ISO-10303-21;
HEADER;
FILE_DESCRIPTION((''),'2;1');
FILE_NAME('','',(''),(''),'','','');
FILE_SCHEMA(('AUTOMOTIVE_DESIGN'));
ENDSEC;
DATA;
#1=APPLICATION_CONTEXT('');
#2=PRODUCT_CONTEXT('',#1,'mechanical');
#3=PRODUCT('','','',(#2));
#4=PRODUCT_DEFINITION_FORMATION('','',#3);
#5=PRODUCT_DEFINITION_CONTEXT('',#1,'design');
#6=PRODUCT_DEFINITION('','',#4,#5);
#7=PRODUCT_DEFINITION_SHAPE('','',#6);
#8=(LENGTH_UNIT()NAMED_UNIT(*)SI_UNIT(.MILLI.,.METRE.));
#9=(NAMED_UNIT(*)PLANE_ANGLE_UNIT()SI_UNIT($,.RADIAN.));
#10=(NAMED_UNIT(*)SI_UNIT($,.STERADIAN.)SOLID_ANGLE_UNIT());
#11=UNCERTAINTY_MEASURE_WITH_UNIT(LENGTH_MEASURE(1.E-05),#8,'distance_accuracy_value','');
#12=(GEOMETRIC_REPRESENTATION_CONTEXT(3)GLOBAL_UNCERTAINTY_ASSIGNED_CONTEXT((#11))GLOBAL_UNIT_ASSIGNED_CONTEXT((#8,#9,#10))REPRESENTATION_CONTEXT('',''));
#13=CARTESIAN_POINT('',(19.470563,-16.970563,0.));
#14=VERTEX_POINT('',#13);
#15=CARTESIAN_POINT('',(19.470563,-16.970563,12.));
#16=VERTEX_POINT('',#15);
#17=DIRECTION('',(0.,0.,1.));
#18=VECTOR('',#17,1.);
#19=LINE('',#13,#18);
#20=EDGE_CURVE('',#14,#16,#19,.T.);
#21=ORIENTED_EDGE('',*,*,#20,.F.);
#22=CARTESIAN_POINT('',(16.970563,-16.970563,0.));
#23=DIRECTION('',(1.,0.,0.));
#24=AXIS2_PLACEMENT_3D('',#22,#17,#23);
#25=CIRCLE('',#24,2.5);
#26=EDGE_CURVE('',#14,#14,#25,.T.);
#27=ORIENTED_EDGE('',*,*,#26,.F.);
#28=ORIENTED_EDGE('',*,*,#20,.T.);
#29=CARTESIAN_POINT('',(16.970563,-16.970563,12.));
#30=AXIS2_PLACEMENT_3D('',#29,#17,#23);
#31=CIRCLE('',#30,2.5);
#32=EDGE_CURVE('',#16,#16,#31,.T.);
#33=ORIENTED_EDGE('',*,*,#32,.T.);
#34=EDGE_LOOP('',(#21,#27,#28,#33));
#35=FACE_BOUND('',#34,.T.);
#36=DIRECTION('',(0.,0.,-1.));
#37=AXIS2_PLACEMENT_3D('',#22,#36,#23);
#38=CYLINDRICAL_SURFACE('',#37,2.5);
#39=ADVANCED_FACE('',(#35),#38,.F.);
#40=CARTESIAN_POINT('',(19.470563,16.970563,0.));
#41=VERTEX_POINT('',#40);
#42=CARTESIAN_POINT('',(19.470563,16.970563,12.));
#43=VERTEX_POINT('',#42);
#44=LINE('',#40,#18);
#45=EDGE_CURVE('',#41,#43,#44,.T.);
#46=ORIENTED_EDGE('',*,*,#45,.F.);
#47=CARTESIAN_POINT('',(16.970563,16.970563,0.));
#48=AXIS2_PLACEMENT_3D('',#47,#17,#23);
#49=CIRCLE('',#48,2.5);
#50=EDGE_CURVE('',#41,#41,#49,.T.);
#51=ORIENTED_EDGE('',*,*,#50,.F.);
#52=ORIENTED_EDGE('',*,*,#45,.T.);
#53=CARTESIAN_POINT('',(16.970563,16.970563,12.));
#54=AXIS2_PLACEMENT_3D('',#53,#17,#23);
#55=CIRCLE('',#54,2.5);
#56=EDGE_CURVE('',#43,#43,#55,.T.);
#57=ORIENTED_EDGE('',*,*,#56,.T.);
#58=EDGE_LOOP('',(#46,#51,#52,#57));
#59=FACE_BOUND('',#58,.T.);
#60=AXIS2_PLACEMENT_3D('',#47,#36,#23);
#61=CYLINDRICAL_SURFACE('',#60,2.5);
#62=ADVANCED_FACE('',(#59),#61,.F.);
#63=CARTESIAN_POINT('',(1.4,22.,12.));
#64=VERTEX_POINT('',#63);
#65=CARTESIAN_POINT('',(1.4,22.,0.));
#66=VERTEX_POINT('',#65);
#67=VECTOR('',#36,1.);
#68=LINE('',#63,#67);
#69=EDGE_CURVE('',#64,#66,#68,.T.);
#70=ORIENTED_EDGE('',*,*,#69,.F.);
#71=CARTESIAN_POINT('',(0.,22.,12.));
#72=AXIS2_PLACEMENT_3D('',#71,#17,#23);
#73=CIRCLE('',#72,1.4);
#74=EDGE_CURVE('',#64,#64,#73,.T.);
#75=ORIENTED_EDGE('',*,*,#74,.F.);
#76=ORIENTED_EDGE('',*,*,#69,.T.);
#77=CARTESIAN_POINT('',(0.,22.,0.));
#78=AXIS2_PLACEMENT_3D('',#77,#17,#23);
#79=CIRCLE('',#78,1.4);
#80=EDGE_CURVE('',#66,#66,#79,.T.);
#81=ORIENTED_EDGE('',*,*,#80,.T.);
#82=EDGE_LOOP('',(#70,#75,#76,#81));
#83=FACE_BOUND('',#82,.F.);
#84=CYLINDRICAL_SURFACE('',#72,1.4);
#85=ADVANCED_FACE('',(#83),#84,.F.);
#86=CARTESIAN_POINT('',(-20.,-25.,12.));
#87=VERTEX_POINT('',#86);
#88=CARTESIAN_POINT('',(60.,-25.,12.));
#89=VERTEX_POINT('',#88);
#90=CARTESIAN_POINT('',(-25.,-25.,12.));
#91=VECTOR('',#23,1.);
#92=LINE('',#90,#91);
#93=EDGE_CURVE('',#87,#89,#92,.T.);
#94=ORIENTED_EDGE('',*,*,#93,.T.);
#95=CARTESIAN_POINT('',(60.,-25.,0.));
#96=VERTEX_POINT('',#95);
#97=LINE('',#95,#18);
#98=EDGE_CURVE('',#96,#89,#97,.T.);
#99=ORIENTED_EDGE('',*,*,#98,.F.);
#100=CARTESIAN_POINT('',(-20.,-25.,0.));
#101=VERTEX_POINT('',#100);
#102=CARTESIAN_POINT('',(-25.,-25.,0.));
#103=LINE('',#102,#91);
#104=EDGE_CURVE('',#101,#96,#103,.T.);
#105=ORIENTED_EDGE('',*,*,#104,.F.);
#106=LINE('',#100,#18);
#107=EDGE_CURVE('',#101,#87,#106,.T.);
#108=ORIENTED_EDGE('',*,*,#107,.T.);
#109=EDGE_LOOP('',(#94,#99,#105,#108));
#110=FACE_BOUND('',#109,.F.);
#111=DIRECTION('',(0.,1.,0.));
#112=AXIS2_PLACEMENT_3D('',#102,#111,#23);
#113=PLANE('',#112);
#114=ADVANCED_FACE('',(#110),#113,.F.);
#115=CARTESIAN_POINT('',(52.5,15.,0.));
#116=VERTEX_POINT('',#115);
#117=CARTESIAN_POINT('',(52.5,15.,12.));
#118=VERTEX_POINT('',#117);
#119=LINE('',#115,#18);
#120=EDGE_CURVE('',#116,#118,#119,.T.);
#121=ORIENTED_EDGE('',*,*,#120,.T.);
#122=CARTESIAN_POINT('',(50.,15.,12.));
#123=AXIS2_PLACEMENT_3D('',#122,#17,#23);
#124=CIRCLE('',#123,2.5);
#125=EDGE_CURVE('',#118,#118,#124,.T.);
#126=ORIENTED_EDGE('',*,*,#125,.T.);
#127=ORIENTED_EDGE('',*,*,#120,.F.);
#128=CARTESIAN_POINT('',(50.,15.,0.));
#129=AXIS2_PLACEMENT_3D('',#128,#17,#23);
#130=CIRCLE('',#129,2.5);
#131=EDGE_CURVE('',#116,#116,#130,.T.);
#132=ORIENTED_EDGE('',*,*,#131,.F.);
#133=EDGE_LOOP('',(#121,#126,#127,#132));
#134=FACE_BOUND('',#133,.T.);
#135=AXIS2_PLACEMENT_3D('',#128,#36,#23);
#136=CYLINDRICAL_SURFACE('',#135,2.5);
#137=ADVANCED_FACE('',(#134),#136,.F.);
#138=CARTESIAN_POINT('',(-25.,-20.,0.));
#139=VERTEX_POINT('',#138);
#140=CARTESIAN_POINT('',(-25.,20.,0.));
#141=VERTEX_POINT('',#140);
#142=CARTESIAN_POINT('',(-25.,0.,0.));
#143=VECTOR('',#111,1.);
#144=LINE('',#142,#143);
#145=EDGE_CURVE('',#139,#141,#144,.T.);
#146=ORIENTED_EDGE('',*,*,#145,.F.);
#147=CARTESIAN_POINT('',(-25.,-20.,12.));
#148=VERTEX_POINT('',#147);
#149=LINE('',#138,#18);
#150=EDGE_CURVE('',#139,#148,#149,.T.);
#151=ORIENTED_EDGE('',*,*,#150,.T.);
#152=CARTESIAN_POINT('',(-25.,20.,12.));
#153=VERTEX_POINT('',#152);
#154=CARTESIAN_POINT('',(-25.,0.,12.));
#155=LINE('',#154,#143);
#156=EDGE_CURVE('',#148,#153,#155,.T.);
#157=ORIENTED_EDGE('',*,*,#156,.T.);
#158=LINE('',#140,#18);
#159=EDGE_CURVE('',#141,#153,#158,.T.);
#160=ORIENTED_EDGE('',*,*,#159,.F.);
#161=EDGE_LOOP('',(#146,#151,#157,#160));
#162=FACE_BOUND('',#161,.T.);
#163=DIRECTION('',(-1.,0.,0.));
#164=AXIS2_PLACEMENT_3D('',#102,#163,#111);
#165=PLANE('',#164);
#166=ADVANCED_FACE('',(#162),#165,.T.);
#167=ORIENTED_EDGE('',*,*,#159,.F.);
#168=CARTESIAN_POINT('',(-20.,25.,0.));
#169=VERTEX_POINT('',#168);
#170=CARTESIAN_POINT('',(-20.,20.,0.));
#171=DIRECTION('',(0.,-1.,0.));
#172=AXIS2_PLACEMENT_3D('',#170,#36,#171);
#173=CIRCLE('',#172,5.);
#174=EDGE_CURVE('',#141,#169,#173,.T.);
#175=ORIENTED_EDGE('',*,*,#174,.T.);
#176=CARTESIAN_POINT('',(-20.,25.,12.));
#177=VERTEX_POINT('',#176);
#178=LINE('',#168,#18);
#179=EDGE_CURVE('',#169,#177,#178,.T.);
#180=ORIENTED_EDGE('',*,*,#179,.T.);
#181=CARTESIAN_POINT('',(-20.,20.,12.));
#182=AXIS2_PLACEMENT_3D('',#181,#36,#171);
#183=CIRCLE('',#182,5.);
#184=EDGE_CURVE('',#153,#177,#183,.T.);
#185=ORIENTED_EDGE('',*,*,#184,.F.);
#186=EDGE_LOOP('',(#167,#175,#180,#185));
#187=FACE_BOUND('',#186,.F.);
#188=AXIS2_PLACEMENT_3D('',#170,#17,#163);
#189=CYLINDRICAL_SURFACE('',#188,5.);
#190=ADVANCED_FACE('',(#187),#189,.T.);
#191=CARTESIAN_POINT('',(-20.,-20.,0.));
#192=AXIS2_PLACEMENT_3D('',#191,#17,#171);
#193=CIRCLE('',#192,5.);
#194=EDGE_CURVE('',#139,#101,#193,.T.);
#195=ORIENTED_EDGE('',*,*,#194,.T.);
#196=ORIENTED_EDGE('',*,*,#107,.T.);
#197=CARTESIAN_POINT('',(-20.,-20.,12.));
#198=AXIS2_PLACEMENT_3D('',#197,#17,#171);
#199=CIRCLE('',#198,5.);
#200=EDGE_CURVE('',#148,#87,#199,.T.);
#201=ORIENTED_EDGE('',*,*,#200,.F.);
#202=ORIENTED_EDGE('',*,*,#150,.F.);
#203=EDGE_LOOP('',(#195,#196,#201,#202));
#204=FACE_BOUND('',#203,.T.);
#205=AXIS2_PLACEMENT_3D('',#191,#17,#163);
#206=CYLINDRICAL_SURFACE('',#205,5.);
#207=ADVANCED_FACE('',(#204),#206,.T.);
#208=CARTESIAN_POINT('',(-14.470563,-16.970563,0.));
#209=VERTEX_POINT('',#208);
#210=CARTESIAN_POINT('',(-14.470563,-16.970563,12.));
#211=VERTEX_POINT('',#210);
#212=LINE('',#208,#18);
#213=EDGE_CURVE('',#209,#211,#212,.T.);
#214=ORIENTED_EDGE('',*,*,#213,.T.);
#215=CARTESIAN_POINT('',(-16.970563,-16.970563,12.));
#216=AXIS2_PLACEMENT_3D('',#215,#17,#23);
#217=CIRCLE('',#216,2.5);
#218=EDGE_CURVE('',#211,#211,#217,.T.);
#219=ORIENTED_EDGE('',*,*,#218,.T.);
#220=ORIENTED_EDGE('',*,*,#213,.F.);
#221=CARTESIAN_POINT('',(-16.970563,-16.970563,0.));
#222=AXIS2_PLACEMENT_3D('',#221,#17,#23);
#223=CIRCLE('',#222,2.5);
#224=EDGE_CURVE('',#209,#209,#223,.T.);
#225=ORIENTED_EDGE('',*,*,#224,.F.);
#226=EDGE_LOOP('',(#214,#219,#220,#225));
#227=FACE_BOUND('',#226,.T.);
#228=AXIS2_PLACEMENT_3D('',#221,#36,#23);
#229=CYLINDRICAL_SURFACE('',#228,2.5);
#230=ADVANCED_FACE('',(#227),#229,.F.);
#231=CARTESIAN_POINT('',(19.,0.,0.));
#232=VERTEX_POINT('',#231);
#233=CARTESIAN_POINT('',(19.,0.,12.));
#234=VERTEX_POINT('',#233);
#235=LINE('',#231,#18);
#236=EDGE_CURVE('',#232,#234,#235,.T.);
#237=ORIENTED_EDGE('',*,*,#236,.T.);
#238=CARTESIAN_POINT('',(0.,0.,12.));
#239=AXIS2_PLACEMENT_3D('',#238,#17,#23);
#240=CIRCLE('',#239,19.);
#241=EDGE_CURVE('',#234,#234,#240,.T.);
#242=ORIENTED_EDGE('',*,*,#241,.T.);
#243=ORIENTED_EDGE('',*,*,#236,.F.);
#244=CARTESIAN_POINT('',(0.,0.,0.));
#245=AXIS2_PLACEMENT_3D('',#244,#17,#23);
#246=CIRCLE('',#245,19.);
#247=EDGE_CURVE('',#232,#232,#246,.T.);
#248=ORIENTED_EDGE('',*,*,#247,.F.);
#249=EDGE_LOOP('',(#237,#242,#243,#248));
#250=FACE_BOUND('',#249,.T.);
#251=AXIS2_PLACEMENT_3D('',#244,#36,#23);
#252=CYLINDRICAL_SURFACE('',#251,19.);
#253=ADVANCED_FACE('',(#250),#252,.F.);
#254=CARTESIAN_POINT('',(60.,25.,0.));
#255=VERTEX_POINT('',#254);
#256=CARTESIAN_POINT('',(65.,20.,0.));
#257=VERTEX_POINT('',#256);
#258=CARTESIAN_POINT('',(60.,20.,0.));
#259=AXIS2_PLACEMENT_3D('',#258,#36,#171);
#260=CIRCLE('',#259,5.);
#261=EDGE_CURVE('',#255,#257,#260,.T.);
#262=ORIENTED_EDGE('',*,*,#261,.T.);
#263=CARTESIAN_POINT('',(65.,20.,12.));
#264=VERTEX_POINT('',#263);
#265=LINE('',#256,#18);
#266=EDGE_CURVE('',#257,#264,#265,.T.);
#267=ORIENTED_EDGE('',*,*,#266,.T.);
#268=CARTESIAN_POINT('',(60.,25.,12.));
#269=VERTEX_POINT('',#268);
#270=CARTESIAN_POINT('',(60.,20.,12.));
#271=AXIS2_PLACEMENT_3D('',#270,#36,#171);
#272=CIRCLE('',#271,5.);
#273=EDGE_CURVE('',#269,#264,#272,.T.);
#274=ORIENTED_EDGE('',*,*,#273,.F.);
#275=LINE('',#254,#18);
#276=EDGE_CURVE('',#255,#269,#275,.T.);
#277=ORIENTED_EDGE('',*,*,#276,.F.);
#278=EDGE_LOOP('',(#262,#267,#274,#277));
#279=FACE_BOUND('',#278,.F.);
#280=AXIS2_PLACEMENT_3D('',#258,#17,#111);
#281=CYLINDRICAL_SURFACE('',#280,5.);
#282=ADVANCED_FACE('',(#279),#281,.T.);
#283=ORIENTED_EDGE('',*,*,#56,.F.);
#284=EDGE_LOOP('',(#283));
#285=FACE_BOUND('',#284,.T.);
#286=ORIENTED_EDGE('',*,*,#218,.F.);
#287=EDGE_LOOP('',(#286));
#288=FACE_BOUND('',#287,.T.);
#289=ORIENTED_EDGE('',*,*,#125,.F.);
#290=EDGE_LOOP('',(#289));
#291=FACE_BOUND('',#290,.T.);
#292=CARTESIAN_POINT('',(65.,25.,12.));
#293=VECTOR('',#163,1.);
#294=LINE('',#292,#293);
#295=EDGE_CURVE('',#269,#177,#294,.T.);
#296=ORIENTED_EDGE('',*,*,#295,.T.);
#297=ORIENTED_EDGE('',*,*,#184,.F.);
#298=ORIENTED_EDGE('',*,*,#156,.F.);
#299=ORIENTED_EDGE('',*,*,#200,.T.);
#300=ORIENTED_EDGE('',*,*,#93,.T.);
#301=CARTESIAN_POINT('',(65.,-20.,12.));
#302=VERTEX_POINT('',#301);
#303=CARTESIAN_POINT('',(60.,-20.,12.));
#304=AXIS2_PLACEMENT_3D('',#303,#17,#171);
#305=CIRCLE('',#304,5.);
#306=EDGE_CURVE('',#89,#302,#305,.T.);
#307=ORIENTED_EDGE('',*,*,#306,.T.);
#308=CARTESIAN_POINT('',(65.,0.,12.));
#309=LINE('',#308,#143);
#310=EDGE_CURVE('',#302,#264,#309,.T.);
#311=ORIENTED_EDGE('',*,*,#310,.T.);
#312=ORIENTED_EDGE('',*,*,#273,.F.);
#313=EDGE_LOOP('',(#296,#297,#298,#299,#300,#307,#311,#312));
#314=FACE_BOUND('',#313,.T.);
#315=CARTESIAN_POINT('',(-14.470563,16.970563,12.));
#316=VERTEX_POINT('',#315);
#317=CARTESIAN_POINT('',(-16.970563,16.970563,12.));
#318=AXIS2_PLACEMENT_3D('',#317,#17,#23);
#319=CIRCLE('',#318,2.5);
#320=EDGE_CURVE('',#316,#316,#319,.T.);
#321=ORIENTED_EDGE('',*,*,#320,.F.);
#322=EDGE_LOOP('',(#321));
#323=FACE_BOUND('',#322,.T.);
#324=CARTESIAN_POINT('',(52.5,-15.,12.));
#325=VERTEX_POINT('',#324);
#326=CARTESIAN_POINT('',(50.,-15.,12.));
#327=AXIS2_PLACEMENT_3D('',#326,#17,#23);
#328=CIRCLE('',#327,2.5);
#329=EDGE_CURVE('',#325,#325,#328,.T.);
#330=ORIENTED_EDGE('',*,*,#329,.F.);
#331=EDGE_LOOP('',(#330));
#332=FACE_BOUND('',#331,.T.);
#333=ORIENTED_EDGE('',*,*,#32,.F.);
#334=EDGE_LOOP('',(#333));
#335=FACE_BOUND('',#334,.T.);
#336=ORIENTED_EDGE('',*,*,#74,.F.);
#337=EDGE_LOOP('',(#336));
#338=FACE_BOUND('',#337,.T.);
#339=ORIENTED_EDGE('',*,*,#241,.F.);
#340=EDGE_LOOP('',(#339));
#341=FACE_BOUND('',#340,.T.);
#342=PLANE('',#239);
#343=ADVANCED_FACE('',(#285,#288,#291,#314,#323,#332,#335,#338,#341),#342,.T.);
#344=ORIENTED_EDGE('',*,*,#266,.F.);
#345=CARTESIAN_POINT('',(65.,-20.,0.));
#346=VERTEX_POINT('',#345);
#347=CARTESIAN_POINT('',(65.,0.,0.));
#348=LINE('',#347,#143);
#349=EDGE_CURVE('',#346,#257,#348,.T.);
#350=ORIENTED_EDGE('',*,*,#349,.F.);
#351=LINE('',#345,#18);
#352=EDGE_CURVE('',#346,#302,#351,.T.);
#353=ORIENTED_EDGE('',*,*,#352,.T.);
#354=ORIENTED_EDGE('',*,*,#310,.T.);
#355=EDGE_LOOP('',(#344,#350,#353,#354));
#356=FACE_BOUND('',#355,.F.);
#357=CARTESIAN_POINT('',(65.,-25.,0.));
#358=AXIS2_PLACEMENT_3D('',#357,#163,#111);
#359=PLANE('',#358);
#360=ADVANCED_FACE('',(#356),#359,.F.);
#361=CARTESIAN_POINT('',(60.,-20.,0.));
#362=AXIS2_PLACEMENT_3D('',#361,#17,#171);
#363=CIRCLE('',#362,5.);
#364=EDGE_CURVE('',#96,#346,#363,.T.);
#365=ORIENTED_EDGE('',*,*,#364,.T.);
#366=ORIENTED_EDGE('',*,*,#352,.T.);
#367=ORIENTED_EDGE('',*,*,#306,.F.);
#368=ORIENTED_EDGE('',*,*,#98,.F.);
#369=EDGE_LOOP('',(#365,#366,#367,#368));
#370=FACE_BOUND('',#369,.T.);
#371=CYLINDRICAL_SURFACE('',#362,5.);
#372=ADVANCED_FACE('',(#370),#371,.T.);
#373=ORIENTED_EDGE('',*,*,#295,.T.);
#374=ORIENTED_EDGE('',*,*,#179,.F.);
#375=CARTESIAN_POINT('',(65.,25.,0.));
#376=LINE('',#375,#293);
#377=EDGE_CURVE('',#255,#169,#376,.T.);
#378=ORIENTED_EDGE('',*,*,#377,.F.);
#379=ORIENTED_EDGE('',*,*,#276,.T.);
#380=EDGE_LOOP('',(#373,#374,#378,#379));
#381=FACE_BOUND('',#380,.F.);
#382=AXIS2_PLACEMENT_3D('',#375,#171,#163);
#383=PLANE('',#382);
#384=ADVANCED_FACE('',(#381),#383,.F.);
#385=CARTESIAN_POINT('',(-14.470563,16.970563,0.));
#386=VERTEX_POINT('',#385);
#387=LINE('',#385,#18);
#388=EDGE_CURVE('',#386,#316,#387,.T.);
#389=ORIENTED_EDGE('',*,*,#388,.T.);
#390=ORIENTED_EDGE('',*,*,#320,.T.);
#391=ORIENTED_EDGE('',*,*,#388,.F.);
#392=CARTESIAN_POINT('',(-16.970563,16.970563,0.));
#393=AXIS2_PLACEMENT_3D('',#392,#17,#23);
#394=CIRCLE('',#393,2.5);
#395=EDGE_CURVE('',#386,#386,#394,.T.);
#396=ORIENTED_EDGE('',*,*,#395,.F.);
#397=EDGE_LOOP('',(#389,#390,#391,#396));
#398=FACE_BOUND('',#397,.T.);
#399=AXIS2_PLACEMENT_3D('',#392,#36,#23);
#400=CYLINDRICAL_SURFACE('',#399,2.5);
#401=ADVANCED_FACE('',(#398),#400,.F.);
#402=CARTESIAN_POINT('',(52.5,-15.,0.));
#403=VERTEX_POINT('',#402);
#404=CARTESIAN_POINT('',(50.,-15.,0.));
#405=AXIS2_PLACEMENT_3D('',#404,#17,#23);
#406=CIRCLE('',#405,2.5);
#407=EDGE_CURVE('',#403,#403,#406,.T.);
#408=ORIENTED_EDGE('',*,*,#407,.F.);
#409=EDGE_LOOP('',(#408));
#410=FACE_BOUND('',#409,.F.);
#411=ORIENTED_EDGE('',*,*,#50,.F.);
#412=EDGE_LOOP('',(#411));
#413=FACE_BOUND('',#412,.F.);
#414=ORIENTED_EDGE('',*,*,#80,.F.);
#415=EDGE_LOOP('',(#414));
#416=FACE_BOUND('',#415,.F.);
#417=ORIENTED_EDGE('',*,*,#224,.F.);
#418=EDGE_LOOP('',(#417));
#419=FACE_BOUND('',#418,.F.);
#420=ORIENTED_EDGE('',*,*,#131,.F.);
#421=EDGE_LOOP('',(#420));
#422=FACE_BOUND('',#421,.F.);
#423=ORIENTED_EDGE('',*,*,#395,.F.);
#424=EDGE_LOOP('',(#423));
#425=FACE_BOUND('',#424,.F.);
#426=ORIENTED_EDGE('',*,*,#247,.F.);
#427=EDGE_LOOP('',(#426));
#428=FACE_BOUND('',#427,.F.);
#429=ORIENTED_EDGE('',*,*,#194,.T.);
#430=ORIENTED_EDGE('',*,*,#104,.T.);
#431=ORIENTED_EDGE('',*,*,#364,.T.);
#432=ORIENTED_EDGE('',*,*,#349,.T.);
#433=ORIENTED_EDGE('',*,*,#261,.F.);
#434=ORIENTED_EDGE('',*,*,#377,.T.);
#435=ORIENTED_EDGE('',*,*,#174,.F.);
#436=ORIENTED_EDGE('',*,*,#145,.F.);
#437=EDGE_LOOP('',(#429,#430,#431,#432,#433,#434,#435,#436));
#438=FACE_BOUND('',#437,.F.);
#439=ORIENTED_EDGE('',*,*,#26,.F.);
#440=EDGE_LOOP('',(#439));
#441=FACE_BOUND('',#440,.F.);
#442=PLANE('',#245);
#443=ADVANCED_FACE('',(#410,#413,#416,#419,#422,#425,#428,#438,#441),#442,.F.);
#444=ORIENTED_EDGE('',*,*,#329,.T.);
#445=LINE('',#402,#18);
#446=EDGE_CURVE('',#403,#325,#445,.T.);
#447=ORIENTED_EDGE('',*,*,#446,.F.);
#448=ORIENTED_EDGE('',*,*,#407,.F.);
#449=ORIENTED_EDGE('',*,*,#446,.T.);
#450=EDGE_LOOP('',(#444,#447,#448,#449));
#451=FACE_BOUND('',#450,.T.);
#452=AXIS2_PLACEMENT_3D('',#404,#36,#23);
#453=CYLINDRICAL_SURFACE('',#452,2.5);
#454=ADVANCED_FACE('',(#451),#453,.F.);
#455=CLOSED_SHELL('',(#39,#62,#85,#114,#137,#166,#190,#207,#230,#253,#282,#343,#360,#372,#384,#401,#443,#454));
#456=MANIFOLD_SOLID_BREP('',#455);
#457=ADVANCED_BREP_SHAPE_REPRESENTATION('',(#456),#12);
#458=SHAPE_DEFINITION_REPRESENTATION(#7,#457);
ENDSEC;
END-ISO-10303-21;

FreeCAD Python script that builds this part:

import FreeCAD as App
import Part
import Sketcher

V = App.Vector
Q = App.Units.Quantity


def edges_at(feature, points):
    """Names of the edges that pass closest to the given points."""
    edges = feature.Shape.Edges
    near = lambda p: min(range(len(edges)), key=lambda i: edges[i].distToShape(Part.Vertex(*p))[0])
    return sorted({f"Edge{near(p) + 1}" for p in points})

doc = App.newDocument("Part")
params = doc.addObject("Spreadsheet::Sheet", "Params")
for row, (alias, value) in enumerate([
    ("sketch1_diameter", "5 mm"),
    ("sketch1_diameter2", "38 mm"),
    ("sketch1_width", "90 mm"),
    ("sketch1_height", "50 mm"),
    ("pad1_length", "12 mm"),
    ("sketch2_diameter", "2.8 mm"),
    ("fillet_radius", "5 mm"),
], start=1):
    params.set(f"A{row}", alias)
    params.set(f"B{row}", "=" + value)
    params.setAlias(f"B{row}", alias)

body = doc.addObject("PartDesign::Body", "Body")

sketch1 = doc.addObject("Sketcher::SketchObject", "Sketch")
body.addObject(sketch1)
sketch1.AttachmentSupport = (doc.XY_Plane, [""])
sketch1.MapMode = "FlatFace"
sketch1.addGeometry([
    Part.LineSegment(V(-25, 25, 0), V(-25, -25, 0)),
    Part.LineSegment(V(-25, -25, 0), V(65, -25, 0)),
    Part.LineSegment(V(65, -25, 0), V(65, 25, 0)),
    Part.LineSegment(V(65, 25, 0), V(-25, 25, 0)),
    Part.Circle(V(-17, -17, 0), V(0, 0, 1), 2.5),
    Part.Circle(V(17, -17, 0), V(0, 0, 1), 2.5),
    Part.Circle(V(50, -15, 0), V(0, 0, 1), 2.5),
    Part.Circle(V(0, 0, 0), V(0, 0, 1), 19),
    Part.Circle(V(-17, 17, 0), V(0, 0, 1), 2.5),
    Part.Circle(V(17, 17, 0), V(0, 0, 1), 2.5),
    Part.Circle(V(50, 15, 0), V(0, 0, 1), 2.5),
], False)
sketch1.addConstraint([
    Sketcher.Constraint("Coincident", 0, 2, 1, 1),
    Sketcher.Constraint("Coincident", 1, 2, 2, 1),
    Sketcher.Constraint("Coincident", 2, 2, 3, 1),
    Sketcher.Constraint("Coincident", 3, 2, 0, 1),
    Sketcher.Constraint("Vertical", 0),
    Sketcher.Constraint("Horizontal", 1),
    Sketcher.Constraint("Vertical", 2),
    Sketcher.Constraint("Horizontal", 3),
    Sketcher.Constraint("Coincident", 7, 3, -1, 1),
    Sketcher.Constraint("Equal", 4, 5),
    Sketcher.Constraint("Equal", 5, 6),
    Sketcher.Constraint("Equal", 6, 8),
    Sketcher.Constraint("Equal", 8, 9),
    Sketcher.Constraint("Equal", 9, 10),
    Sketcher.Constraint("Symmetric", 5, 3, 8, 3, -1, 1),
    Sketcher.Constraint("Symmetric", 4, 3, 9, 3, -1, 1),
    Sketcher.Constraint("Symmetric", 4, 3, 5, 3, -2),
    Sketcher.Constraint("Symmetric", 6, 3, 10, 3, -1),
    Sketcher.Constraint("Diameter", 4, Q("5 mm")),
    Sketcher.Constraint("Diameter", 7, Q("38 mm")),
    Sketcher.Constraint("DistanceX", 1, 1, 1, 2, Q("90 mm")),
    Sketcher.Constraint("DistanceY", 0, 2, 0, 1, Q("50 mm")),
    Sketcher.Constraint("DistanceX", -1, 1, 6, 3, Q("50 mm")),
    Sketcher.Constraint("DistanceY", 6, 3, -1, 1, Q("15 mm")),
    Sketcher.Constraint("DistanceX", 0, 2, -1, 1, Q("25 mm")),
    Sketcher.Constraint("DistanceY", 0, 2, -1, 1, Q("25 mm")),
    Sketcher.Constraint("DistanceX", 4, 3, -1, 1, Q("16.970563 mm")),
    Sketcher.Constraint("DistanceY", 4, 3, -1, 1, Q("16.970563 mm")),
])
sketch1.setExpression("Constraints[18]", "Params.sketch1_diameter")
sketch1.setExpression("Constraints[19]", "Params.sketch1_diameter2")
sketch1.setExpression("Constraints[20]", "Params.sketch1_width")
sketch1.setExpression("Constraints[21]", "Params.sketch1_height")
pad1 = doc.addObject("PartDesign::Pad", "Pad")
body.addObject(pad1)
pad1.Profile = sketch1
pad1.setExpression("Length", "Params.pad1_length")

sketch2 = doc.addObject("Sketcher::SketchObject", "Sketch001")
body.addObject(sketch2)
sketch2.AttachmentSupport = (doc.XY_Plane, [""])
sketch2.MapMode = "FlatFace"
sketch2.AttachmentOffset = App.Placement(V(0, 0, 12), App.Rotation())
sketch2.addGeometry(Part.Circle(V(0, 22, 0), V(0, 0, 1), 1.4), False)
sketch2.addConstraint([
    Sketcher.Constraint("PointOnObject", 0, 3, -2),
    Sketcher.Constraint("Diameter", 0, Q("2.8 mm")),
    Sketcher.Constraint("DistanceY", -1, 1, 0, 3, Q("22 mm")),
])
sketch2.setExpression("Constraints[1]", "Params.sketch2_diameter")
pocket1 = doc.addObject("PartDesign::Pocket", "Pocket")
body.addObject(pocket1)
pocket1.Profile = sketch2
pocket1.Type = "ThroughAll"
doc.recompute()

fillet = doc.addObject("PartDesign::Fillet", "Fillet")
body.addObject(fillet)
fillet.Base = (pocket1, edges_at(pocket1, [
    (65, -25, 6),
    (-25, -25, 6),
    (-25, 25, 6),
    (65, 25, 6),
]))
fillet.setExpression("Radius", "Params.fillet_radius")

doc.recompute()
